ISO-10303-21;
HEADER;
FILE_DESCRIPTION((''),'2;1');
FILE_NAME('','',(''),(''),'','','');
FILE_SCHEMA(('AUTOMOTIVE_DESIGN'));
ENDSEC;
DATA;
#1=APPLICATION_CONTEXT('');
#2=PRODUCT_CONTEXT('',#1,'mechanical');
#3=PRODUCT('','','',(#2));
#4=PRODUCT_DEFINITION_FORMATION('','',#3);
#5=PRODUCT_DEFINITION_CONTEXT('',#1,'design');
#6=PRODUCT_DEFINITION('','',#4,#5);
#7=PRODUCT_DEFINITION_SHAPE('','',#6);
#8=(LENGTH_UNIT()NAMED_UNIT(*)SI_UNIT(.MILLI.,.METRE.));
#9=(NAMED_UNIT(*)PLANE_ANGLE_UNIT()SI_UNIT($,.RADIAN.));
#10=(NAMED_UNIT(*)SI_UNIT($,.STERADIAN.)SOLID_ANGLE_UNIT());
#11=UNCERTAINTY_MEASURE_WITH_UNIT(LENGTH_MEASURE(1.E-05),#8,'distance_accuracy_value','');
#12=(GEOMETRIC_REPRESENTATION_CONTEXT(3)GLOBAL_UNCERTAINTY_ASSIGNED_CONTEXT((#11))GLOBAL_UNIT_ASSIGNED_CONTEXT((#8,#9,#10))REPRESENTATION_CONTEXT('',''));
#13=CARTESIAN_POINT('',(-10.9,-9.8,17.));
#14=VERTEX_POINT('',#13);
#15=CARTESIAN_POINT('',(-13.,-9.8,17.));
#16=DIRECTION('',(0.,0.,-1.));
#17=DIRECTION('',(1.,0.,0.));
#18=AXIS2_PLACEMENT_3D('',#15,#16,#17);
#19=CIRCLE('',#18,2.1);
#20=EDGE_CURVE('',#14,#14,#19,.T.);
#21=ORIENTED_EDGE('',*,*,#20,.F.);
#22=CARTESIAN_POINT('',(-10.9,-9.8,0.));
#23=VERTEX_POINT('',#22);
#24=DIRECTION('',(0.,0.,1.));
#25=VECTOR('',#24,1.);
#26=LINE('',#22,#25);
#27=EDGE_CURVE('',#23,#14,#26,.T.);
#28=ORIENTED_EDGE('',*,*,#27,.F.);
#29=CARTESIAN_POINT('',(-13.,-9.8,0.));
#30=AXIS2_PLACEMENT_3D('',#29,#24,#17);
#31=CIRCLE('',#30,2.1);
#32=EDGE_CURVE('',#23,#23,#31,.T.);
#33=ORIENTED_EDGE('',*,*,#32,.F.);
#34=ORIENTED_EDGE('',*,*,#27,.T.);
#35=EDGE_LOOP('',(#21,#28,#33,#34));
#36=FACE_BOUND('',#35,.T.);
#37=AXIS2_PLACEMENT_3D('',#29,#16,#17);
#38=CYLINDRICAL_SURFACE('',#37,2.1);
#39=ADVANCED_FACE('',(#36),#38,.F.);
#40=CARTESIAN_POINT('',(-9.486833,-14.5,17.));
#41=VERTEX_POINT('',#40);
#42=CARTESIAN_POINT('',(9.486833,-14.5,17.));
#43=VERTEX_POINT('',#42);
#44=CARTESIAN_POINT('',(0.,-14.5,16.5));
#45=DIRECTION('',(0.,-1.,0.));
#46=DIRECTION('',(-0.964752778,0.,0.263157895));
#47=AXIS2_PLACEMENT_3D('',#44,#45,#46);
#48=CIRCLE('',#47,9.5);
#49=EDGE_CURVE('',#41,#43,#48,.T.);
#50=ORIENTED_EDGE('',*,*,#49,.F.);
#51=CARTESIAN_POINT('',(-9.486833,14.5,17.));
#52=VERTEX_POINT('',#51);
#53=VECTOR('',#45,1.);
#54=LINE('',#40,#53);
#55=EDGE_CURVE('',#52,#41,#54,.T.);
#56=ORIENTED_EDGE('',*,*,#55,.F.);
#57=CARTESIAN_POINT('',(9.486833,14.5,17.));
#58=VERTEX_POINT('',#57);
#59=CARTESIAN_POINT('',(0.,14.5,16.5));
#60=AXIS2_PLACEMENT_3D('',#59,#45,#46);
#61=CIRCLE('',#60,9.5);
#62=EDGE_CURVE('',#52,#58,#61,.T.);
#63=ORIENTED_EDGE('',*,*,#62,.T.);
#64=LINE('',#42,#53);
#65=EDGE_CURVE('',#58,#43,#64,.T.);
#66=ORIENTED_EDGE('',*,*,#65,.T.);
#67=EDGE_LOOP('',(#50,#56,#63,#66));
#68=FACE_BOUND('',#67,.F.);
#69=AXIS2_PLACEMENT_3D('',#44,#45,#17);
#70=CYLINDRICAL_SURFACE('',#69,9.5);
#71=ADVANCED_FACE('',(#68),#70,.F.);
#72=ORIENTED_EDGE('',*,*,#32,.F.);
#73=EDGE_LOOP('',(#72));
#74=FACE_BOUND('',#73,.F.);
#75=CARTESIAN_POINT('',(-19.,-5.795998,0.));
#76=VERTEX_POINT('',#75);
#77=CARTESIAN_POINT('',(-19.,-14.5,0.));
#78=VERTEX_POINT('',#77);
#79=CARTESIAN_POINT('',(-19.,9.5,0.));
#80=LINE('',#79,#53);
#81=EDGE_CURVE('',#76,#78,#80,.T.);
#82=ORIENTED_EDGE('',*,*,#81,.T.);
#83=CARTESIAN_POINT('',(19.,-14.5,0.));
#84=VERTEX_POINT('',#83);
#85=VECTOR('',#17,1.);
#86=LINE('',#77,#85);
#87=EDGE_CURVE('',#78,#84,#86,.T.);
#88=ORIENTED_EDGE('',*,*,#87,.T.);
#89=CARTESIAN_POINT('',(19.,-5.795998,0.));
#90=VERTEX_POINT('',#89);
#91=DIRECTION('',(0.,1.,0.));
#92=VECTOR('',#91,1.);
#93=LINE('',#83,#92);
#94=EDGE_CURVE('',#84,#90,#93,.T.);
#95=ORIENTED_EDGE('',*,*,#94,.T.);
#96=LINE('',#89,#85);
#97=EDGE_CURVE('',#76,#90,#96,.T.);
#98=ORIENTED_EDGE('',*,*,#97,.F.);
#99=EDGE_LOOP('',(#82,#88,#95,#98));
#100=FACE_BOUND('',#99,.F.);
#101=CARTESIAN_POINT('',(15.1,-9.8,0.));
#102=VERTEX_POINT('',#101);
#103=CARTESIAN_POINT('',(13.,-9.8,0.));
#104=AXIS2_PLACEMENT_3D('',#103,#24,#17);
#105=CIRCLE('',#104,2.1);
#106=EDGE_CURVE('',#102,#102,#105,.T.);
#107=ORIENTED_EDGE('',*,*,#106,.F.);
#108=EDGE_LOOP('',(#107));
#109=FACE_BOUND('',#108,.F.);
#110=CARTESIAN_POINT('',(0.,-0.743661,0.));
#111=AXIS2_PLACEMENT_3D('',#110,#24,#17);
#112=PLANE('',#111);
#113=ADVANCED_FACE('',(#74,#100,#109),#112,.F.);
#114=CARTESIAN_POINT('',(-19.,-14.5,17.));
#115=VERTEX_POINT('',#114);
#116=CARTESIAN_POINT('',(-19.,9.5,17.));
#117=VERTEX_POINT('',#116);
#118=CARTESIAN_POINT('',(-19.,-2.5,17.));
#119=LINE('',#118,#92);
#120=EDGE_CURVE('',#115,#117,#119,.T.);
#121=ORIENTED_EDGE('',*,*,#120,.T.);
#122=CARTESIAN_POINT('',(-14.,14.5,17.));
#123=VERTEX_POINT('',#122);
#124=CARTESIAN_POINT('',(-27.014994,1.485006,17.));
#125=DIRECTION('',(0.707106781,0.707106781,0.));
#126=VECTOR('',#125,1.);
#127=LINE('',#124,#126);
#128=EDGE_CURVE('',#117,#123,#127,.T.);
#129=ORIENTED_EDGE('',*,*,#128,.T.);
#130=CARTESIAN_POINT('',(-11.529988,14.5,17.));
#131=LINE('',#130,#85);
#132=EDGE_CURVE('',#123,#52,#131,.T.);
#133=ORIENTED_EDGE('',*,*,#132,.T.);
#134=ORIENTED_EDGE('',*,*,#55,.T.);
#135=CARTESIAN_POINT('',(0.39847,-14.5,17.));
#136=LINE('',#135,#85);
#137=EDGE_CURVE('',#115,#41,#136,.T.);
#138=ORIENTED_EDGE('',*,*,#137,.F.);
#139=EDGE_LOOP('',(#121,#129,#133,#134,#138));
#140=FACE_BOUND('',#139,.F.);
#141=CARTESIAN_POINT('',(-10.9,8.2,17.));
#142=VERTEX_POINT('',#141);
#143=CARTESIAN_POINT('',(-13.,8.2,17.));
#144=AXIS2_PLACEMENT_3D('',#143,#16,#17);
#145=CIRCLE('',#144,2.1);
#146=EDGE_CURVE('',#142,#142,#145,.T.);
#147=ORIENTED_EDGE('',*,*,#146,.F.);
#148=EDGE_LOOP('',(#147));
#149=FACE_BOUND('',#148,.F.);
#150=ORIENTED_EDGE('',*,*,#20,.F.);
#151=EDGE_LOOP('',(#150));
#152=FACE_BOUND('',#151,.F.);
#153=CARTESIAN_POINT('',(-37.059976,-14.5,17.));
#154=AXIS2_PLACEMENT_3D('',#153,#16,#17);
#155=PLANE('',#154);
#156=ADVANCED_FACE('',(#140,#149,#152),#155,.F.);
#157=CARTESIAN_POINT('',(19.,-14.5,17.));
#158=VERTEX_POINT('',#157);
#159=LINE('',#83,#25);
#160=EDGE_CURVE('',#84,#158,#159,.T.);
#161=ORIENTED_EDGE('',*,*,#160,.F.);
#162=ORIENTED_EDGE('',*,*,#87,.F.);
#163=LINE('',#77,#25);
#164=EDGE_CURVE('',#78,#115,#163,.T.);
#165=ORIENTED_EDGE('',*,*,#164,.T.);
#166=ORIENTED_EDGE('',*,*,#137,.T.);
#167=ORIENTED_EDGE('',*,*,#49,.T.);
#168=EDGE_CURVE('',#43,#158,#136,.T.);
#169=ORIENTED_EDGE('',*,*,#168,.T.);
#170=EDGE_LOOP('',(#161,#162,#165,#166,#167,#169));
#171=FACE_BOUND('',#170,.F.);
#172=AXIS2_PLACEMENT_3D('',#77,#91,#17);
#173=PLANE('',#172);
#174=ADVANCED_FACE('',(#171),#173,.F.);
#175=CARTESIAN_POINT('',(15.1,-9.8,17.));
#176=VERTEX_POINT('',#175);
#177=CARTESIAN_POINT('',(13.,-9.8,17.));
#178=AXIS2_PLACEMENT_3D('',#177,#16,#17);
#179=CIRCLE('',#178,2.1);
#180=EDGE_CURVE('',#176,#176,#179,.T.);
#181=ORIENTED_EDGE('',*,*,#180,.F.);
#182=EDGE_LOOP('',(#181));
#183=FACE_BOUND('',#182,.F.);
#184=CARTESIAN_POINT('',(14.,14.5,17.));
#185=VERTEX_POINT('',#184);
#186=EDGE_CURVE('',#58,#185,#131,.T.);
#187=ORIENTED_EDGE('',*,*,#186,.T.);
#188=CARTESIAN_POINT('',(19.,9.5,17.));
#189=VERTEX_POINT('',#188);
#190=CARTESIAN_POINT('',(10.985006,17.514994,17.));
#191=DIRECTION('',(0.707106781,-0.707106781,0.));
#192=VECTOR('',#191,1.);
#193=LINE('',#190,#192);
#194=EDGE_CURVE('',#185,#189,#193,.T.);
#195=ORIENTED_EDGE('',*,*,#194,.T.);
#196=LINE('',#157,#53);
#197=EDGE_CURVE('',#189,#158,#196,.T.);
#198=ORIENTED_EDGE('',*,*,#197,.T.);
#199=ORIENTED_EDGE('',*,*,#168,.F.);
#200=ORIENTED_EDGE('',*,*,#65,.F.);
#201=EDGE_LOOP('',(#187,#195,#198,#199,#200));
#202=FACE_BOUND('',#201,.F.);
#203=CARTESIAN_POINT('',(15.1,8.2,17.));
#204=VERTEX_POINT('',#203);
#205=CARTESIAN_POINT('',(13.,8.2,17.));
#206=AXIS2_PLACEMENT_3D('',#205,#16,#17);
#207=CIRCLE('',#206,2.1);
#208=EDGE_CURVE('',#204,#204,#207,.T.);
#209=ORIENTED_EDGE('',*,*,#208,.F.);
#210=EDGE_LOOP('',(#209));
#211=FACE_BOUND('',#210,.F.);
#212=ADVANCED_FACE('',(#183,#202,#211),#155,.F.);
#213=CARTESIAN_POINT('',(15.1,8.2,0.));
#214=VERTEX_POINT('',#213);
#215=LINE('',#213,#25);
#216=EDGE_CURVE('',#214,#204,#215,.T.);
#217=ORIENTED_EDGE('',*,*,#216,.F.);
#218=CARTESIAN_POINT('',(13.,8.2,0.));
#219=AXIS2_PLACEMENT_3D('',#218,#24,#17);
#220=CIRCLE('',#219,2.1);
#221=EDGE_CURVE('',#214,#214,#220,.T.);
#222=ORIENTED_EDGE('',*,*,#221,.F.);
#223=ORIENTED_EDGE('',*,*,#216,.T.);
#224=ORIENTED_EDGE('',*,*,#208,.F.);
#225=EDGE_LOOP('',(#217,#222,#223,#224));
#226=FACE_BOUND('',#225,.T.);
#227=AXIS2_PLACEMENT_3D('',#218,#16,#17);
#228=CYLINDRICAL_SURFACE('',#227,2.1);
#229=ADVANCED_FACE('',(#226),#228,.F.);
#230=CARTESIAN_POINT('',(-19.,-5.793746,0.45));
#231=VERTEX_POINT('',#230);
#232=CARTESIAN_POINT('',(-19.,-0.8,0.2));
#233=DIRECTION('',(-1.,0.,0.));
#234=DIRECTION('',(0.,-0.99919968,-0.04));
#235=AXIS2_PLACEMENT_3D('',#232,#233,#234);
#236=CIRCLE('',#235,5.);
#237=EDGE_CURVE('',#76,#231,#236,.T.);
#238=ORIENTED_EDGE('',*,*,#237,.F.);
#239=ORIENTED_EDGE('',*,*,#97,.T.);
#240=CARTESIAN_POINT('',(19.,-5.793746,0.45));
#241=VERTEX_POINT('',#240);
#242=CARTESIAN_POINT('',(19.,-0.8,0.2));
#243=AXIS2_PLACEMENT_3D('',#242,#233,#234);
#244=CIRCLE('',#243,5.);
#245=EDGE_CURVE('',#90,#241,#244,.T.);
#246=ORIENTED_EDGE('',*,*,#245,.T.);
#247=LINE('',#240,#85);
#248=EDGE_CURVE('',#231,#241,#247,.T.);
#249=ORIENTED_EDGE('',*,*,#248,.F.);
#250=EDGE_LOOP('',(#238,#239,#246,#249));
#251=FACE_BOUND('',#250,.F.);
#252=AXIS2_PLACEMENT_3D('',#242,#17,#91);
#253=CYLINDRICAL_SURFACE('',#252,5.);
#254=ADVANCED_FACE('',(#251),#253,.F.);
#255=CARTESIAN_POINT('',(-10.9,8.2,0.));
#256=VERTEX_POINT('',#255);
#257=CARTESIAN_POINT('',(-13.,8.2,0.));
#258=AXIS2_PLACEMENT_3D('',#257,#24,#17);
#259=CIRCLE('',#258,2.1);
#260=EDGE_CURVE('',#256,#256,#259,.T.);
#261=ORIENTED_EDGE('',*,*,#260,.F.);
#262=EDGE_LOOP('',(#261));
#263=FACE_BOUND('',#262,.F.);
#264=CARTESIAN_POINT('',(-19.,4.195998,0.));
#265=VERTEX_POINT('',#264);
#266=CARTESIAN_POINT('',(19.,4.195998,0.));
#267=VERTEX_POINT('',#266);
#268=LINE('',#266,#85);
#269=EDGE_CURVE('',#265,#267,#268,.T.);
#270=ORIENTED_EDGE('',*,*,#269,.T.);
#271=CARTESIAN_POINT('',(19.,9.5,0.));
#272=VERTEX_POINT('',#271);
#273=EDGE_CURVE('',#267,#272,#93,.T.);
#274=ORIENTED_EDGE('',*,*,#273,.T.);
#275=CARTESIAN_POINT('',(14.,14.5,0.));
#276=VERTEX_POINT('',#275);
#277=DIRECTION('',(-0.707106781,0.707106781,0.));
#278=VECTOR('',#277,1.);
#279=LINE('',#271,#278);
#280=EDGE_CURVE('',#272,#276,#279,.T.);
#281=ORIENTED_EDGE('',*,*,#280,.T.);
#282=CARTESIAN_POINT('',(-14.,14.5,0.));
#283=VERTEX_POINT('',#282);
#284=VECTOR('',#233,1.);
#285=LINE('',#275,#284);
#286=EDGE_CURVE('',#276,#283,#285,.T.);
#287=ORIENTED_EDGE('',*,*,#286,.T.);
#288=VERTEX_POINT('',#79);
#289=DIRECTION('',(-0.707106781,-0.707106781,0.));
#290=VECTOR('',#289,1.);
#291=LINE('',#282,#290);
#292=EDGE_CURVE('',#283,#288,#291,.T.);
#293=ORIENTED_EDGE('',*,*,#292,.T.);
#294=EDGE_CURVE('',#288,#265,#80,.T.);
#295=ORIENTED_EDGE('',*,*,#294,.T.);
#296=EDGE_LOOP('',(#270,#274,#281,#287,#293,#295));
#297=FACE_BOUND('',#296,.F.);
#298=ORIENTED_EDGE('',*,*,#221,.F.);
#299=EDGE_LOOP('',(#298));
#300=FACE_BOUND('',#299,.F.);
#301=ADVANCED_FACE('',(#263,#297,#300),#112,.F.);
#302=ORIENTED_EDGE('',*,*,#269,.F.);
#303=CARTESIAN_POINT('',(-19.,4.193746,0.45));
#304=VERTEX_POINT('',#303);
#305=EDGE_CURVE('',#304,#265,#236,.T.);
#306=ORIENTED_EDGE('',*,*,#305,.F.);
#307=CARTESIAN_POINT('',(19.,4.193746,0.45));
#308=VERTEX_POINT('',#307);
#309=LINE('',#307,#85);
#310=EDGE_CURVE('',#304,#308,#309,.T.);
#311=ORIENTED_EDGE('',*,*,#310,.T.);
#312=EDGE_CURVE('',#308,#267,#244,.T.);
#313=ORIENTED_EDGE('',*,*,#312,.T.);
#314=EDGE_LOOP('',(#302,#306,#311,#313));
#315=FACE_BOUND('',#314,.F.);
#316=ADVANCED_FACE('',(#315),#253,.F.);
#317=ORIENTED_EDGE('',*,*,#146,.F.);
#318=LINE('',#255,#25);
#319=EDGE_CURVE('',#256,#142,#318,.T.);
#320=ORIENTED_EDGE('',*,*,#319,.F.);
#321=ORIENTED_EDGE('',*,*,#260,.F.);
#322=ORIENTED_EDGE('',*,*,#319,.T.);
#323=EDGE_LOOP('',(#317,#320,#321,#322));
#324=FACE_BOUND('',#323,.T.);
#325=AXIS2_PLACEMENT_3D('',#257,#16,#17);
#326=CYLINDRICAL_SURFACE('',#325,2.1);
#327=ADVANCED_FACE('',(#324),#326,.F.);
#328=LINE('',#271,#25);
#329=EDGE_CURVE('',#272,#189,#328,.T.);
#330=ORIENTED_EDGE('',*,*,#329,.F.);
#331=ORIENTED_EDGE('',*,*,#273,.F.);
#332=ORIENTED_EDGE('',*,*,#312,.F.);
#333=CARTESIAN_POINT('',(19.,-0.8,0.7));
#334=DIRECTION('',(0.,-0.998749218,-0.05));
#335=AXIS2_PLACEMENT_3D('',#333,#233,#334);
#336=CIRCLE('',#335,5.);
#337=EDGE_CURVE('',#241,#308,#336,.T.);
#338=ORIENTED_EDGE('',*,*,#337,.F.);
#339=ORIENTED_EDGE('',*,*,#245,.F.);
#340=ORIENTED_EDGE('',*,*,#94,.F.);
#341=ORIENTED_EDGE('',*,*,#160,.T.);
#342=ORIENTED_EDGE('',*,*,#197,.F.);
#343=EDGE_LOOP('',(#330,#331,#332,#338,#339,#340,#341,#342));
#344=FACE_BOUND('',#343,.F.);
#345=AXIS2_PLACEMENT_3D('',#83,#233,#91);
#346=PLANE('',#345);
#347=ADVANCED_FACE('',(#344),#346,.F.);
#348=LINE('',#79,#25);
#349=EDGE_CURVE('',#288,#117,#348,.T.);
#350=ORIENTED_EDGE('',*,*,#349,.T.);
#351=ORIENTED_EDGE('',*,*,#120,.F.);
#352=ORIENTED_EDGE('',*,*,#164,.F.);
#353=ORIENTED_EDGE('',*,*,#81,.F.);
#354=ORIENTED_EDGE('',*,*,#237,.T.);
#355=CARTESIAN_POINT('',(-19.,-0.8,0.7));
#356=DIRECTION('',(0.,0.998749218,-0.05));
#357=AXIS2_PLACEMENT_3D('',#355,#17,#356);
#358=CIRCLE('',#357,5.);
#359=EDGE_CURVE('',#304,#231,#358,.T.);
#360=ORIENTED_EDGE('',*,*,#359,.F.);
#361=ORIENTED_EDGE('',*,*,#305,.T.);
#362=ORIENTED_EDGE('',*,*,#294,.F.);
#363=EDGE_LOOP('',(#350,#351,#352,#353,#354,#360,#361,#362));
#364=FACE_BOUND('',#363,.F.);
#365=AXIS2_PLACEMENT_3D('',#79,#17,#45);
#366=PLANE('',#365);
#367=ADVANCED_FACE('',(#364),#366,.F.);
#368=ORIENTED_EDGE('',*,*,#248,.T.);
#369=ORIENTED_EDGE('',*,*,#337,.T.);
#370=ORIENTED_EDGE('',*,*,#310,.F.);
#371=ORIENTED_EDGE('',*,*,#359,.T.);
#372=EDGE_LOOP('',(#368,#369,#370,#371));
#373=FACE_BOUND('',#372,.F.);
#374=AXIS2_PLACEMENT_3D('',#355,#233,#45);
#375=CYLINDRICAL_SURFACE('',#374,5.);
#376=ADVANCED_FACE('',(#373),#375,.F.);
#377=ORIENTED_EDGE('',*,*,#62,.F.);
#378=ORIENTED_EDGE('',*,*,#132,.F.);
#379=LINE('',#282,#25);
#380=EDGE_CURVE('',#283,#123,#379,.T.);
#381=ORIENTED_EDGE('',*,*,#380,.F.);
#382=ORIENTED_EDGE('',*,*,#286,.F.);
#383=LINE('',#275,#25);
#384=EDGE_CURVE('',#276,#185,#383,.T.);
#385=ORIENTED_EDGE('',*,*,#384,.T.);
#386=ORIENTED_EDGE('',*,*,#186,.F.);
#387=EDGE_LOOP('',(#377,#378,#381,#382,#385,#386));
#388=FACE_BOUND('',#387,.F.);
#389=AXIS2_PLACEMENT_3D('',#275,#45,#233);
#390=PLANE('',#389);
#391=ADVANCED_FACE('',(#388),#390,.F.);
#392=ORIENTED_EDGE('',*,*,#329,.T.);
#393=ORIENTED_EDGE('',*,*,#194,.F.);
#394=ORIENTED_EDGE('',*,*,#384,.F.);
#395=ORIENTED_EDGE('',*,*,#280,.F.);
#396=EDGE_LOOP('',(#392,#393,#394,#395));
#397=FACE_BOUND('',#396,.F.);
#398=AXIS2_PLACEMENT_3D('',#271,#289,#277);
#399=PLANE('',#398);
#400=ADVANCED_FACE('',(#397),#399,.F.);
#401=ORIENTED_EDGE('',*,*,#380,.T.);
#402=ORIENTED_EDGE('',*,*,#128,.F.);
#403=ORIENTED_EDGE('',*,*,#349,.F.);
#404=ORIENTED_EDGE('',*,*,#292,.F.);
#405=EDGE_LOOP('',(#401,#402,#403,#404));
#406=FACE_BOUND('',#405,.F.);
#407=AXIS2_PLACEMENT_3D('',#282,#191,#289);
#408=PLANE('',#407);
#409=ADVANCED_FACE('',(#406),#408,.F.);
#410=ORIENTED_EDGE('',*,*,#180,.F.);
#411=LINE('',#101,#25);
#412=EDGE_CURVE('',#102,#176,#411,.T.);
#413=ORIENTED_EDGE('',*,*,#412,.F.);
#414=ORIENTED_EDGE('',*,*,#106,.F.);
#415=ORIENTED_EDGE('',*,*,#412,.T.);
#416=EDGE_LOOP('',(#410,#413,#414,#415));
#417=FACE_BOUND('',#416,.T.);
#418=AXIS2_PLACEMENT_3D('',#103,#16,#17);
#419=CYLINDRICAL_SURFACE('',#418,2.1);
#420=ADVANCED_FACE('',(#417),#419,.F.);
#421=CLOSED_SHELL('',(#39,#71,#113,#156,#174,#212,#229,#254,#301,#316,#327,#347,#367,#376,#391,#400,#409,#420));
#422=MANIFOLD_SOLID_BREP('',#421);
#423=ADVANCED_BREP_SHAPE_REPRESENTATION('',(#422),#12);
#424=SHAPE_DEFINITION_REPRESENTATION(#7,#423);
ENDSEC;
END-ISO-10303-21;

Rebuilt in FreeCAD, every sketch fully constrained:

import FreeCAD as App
import Part
import Sketcher
from FreeCAD import Vector
Q = App.Units.Quantity


def add_polygon(sketch, points):
    """Adds a closed chain of lines whose ends are joined by coincident constraints."""
    first, n = sketch.GeometryCount, len(points)
    for a, b in zip(points, points[1:] + points[:1]):
        sketch.addGeometry(Part.LineSegment(App.Vector(*a, 0), App.Vector(*b, 0)), False)
    for i in range(n):
        sketch.addConstraint(Sketcher.Constraint("Coincident", first + i, 2, first + (i + 1) % n, 1))

doc = App.newDocument("Part")
body = doc.addObject("PartDesign::Body", "Body")

# Sketch on XY plane
sketch1 = body.newObject("Sketcher::SketchObject", "Sketch")
sketch1.AttachmentSupport = (doc.getObject("XY_Plane"), [""])
sketch1.MapMode = "FlatFace"
add_polygon(sketch1, [(14, 14.5), (-14, 14.5), (-19, 9.5), (-19, -14.5), (19, -14.5), (19, 9.5)])  # lines 0-5
sketch1.addGeometry(Part.Circle(Vector(-13, -9.8, 0), Vector(0, 0, 1), 2.1), False)  # 6
sketch1.addGeometry(Part.Circle(Vector(13, -9.8, 0), Vector(0, 0, 1), 2.1), False)  # 7
sketch1.addGeometry(Part.Circle(Vector(-13, 8.2, 0), Vector(0, 0, 1), 2.1), False)  # 8
sketch1.addGeometry(Part.Circle(Vector(13, 8.2, 0), Vector(0, 0, 1), 2.1), False)  # 9
sketch1.addConstraint([
    Sketcher.Constraint("Horizontal", 0),
    Sketcher.Constraint("Vertical", 2),
    Sketcher.Constraint("Horizontal", 3),
    Sketcher.Constraint("Vertical", 4),
    Sketcher.Constraint("Equal", 6, 7),
    Sketcher.Constraint("Equal", 7, 8),
    Sketcher.Constraint("Equal", 8, 9),
    Sketcher.Constraint("Symmetric", 6, 3, 7, 3, -2),
    Sketcher.Constraint("Symmetric", 8, 3, 9, 3, -2),
    Sketcher.Constraint("Symmetric", 1, 2, 4, 2, -2),
    Sketcher.Constraint("Perpendicular", 1, 5),
    Sketcher.Constraint("Vertical", 6, 3, 8, 3),
    Sketcher.Constraint("Equal", 1, 5),
    Sketcher.Constraint("Diameter", 6, Q("4.2 mm")),
    Sketcher.Constraint("DistanceX", 0, 2, 0, 1, Q("28 mm")),
    Sketcher.Constraint("DistanceX", 3, 1, 3, 2, Q("38 mm")),
    Sketcher.Constraint("DistanceY", 2, 2, 2, 1, Q("24 mm")),
    Sketcher.Constraint("DistanceX", 6, 3, -1, 1, Q("13 mm")),
    Sketcher.Constraint("DistanceY", 6, 3, 8, 3, Q("18 mm")),
    Sketcher.Constraint("DistanceY", 6, 3, -1, 1, Q("9.8 mm")),
    Sketcher.Constraint("DistanceY", -1, 1, 0, 2, Q("14.5 mm")),
])
pad1 = body.newObject("PartDesign::Pad", "Pad")
pad1.Profile = sketch1
pad1.Length = 19

# Sketch on XZ plane
sketch2 = body.newObject("Sketcher::SketchObject", "Sketch001")
sketch2.AttachmentSupport = (doc.getObject("XZ_Plane"), [""])
sketch2.MapMode = "FlatFace"
sketch2.AttachmentOffset = App.Placement(Vector(0, 0, 14.5), App.Rotation())
sketch2.addGeometry(Part.Circle(Vector(0, 16.5, 0), Vector(0, 0, 1), 9.5), False)
sketch2.addConstraint([
    Sketcher.Constraint("PointOnObject", 0, 3, -2),
    Sketcher.Constraint("Diameter", 0, Q("19 mm")),
    Sketcher.Constraint("DistanceY", -1, 1, 0, 3, Q("16.5 mm")),
])
pocket1 = body.newObject("PartDesign::Pocket", "Pocket")
pocket1.Profile = sketch2
pocket1.Type = "ThroughAll"

# Sketch on YZ plane
sketch3 = body.newObject("Sketcher::SketchObject", "Sketch002")
sketch3.AttachmentSupport = (doc.getObject("YZ_Plane"), [""])
sketch3.MapMode = "FlatFace"
sketch3.AttachmentOffset = App.Placement(Vector(0, 0, 19), App.Rotation())
sketch3.addGeometry(Part.Circle(Vector(-0.8, 0.2, 0), Vector(0, 0, 1), 5), False)
sketch3.addConstraint([
    Sketcher.Constraint("Diameter", 0, Q("10 mm")),
    Sketcher.Constraint("DistanceX", 0, 3, -1, 1, Q("0.8 mm")),
    Sketcher.Constraint("DistanceY", -1, 1, 0, 3, Q("0.2 mm")),
])
pocket2 = body.newObject("PartDesign::Pocket", "Pocket001")
pocket2.Profile = sketch3
pocket2.Type = "ThroughAll"

# Sketch on XZ plane
sketch4 = body.newObject("Sketcher::SketchObject", "Sketch003")
sketch4.AttachmentSupport = (doc.getObject("XZ_Plane"), [""])
sketch4.MapMode = "FlatFace"
sketch4.AttachmentOffset = App.Placement(Vector(0, 0, 14.5), App.Rotation())
add_polygon(sketch4, [(-37.059976, 20.990418), (-37.059976, 17), (37.856916, 17), (37.856916, 20.990418)])  # lines 0-3
sketch4.addConstraint([
    Sketcher.Constraint("Vertical", 0),
    Sketcher.Constraint("Horizontal", 1),
    Sketcher.Constraint("Vertical", 2),
    Sketcher.Constraint("Horizontal", 3),
    Sketcher.Constraint("DistanceY", -1, 1, 0, 2, Q("17 mm")),
    Sketcher.Constraint("DistanceX", 1, 1, 1, 2, Q("74.916892 mm")),
    Sketcher.Constraint("DistanceY", 0, 2, 0, 1, Q("3.990418 mm")),
    Sketcher.Constraint("DistanceX", 0, 2, -1, 1, Q("37.059976 mm")),
])
pocket3 = body.newObject("PartDesign::Pocket", "Pocket002")
pocket3.Profile = sketch4
pocket3.Type = "ThroughAll"

# Sketch on YZ plane
sketch5 = body.newObject("Sketcher::SketchObject", "Sketch004")
sketch5.AttachmentSupport = (doc.getObject("YZ_Plane"), [""])
sketch5.MapMode = "FlatFace"
sketch5.AttachmentOffset = App.Placement(Vector(0, 0, -19), App.Rotation())
sketch5.addGeometry(Part.Circle(Vector(-0.8, 0.7, 0), Vector(0, 0, 1), 5), False)
sketch5.addConstraint([
    Sketcher.Constraint("Diameter", 0, Q("10 mm")),
    Sketcher.Constraint("DistanceX", 0, 3, -1, 1, Q("0.8 mm")),
    Sketcher.Constraint("DistanceY", -1, 1, 0, 3, Q("0.7 mm")),
])
pocket4 = body.newObject("PartDesign::Pocket", "Pocket003")
pocket4.Profile = sketch5
pocket4.Type = "ThroughAll"
pocket4.Reversed = True

doc.recompute()
